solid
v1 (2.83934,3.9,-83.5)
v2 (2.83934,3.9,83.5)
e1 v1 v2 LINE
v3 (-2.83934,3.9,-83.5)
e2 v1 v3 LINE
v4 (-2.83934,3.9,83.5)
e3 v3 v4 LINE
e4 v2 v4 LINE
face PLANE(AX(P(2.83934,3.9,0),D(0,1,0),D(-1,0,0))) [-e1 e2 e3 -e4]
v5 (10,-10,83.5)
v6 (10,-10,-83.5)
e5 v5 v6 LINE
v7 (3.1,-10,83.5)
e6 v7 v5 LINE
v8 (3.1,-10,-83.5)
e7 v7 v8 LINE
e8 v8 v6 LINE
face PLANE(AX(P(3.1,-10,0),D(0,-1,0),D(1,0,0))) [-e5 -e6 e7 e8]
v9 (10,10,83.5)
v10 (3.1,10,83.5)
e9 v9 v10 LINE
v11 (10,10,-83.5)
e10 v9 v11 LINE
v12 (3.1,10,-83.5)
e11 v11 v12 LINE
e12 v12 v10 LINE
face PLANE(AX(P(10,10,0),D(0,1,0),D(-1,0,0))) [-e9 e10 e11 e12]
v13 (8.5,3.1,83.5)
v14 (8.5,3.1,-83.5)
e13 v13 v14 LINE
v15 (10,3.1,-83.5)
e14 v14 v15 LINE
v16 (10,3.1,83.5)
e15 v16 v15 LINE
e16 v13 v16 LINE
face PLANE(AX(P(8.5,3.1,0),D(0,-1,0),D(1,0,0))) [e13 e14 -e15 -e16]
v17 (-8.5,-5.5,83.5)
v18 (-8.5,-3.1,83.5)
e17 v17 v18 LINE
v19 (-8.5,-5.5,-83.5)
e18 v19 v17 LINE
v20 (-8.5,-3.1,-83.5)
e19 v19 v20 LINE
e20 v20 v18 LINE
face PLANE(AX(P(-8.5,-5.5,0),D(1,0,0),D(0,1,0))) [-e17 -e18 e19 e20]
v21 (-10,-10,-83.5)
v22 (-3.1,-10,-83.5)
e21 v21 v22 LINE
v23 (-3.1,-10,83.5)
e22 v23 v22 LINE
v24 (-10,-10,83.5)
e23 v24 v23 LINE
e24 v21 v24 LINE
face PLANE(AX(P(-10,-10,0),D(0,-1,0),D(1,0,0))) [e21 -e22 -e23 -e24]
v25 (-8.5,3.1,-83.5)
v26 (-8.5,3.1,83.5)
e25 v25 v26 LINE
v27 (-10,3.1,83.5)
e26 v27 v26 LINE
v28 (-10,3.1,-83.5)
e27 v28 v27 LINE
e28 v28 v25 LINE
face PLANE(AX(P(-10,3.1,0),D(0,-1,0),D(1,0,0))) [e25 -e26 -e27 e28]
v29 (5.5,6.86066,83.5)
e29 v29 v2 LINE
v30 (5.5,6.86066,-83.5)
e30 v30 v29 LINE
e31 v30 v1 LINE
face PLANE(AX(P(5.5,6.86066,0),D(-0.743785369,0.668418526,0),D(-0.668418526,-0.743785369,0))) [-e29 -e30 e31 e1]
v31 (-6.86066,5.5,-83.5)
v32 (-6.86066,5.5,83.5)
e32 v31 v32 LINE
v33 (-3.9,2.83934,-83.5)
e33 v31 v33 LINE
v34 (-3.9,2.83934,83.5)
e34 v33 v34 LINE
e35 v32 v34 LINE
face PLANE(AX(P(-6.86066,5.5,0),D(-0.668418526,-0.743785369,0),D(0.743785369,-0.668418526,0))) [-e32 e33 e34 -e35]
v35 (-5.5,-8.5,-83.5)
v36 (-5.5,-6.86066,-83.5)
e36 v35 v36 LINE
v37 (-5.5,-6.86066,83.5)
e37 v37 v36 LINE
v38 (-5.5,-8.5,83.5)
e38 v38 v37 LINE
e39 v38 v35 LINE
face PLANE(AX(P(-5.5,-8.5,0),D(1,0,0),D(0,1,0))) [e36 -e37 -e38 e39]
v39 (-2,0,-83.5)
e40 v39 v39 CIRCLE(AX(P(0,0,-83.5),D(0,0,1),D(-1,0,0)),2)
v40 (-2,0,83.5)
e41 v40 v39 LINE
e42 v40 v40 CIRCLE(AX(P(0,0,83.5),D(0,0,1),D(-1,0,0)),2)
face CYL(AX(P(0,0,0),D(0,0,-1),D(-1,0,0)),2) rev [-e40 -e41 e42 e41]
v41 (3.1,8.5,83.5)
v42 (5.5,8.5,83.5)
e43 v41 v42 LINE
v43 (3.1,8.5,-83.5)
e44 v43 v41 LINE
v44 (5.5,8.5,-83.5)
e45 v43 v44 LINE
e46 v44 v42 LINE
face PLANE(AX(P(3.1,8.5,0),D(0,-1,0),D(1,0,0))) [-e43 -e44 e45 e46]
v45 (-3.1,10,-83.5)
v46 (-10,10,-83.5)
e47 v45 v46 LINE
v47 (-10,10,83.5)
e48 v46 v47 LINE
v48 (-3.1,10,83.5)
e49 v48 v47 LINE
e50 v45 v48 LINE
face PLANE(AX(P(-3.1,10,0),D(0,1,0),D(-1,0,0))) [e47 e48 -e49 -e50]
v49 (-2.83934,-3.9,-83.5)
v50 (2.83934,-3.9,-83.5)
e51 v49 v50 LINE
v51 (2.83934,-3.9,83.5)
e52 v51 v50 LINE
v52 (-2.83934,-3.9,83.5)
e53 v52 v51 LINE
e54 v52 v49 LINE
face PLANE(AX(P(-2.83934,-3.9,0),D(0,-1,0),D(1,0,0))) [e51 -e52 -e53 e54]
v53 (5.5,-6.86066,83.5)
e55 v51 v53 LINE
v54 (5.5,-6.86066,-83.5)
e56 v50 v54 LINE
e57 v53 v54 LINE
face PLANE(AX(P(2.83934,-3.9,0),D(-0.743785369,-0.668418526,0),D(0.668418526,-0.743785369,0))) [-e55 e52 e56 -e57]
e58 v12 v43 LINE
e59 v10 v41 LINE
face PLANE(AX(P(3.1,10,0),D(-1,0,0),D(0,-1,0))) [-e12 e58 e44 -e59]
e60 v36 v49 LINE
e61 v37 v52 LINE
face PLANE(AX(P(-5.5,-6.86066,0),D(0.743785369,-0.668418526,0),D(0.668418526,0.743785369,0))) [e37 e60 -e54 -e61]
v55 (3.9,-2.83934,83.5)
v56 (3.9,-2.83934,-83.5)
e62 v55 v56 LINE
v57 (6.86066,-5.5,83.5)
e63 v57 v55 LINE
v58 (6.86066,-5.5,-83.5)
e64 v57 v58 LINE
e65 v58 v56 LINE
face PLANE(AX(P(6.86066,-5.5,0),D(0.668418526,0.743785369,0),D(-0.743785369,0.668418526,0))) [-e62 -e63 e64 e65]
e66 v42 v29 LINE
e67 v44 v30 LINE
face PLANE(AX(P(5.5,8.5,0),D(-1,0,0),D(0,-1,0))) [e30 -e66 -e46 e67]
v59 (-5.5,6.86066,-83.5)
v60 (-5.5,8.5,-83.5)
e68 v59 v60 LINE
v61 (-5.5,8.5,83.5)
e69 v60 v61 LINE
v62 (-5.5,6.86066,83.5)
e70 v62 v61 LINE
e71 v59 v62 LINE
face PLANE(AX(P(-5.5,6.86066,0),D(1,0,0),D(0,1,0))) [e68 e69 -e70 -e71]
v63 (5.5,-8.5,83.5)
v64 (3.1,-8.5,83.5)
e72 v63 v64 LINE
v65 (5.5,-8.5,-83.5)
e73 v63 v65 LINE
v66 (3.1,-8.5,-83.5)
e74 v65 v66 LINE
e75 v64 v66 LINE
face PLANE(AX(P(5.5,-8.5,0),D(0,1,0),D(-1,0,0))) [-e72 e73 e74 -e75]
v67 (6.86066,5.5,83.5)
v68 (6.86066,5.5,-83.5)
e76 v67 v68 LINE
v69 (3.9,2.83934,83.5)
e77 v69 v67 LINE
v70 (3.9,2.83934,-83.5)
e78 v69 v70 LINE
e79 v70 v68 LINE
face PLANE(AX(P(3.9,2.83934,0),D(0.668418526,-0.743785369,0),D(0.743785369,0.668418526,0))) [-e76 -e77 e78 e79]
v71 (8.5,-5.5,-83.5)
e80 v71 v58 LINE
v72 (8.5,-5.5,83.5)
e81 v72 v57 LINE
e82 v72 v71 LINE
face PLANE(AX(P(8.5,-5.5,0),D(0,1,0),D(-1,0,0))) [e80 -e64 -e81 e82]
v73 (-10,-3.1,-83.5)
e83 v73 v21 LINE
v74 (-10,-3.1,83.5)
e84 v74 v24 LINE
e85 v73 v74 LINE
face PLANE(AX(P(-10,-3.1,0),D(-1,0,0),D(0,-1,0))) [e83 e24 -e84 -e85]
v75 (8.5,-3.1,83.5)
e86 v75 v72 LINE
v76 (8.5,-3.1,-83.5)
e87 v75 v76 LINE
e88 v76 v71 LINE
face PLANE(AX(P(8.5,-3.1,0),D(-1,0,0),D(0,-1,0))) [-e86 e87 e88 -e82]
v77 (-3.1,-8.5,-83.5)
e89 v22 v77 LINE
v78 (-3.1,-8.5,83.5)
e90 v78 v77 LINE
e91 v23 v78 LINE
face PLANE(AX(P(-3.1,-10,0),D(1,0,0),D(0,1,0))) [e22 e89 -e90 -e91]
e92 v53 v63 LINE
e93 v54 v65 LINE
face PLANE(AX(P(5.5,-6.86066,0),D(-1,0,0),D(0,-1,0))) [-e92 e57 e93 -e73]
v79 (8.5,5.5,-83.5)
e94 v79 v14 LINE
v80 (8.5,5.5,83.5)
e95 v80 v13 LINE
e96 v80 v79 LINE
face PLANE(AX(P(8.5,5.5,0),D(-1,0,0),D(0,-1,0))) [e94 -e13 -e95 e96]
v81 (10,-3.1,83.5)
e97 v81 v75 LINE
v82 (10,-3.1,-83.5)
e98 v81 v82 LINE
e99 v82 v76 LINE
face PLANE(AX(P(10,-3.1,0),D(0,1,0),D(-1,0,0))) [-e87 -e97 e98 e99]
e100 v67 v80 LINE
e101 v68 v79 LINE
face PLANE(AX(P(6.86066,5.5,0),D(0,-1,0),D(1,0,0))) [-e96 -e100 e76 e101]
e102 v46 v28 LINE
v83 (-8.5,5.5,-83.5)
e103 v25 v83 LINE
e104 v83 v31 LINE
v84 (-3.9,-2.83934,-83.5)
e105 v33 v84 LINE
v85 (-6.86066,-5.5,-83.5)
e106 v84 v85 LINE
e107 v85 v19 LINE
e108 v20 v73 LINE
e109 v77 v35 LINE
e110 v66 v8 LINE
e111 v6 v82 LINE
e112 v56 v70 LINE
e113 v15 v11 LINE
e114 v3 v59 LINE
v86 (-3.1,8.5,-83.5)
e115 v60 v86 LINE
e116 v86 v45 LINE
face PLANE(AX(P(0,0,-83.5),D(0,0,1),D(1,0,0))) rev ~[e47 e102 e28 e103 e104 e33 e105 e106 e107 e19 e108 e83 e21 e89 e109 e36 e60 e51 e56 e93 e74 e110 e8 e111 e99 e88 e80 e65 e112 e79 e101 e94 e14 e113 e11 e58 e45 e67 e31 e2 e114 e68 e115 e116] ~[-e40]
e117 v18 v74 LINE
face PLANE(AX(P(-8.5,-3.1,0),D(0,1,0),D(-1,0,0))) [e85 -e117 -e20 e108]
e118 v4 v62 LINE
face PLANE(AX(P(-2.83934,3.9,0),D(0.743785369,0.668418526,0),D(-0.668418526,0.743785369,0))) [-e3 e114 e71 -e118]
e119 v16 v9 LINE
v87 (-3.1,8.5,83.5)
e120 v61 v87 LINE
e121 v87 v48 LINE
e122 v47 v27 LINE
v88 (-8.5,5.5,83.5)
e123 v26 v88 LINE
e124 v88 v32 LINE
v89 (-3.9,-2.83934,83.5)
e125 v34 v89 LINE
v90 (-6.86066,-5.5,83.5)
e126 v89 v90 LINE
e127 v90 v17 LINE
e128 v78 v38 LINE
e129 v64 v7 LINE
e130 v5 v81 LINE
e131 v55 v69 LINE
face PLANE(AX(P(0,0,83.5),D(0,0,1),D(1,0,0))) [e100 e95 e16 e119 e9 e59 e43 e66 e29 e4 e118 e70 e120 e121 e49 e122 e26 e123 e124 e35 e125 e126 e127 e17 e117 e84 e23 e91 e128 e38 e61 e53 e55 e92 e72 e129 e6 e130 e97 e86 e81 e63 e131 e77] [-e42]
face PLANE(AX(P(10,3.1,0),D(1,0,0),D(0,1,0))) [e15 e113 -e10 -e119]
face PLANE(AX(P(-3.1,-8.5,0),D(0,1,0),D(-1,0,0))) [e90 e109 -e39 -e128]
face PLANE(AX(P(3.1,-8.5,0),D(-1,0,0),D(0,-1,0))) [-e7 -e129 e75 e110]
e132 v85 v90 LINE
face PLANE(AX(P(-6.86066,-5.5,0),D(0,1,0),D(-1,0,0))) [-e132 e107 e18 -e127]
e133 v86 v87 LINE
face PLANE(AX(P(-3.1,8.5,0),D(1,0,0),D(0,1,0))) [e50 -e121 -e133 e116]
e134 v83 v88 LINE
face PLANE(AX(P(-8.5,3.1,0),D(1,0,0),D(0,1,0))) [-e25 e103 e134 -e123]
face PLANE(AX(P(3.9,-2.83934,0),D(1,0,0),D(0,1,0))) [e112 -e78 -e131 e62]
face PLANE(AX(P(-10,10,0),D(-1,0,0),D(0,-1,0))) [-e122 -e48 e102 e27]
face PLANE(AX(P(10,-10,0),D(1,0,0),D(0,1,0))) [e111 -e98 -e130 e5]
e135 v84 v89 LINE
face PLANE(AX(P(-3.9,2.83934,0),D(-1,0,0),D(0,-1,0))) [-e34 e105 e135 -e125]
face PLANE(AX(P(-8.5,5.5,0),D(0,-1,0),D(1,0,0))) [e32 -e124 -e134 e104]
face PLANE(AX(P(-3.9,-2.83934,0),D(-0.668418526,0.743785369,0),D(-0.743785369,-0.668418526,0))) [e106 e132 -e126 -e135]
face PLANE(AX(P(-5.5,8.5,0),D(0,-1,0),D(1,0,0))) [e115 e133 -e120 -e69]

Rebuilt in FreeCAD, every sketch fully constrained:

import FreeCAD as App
import Part
import Sketcher

V = App.Vector
Q = App.Units.Quantity

doc = App.newDocument("Part")
body = doc.addObject("PartDesign::Body", "Body")

# Sketch on XY plane
sketch1 = body.newObject("Sketcher::SketchObject", "Sketch")
sketch1.AttachmentSupport = (doc.getObject("XY_Plane"), [""])
sketch1.MapMode = "FlatFace"
sketch1.addGeometry(Part.LineSegment(V(10, 10, 0), V(3.1, 10, 0)), False)
sketch1.addGeometry(Part.LineSegment(V(3.1, 10, 0), V(3.1, 8.5, 0)), False)
sketch1.addGeometry(Part.LineSegment(V(3.1, 8.5, 0), V(5.5, 8.5, 0)), False)
sketch1.addGeometry(Part.LineSegment(V(5.5, 8.5, 0), V(5.5, 6.86066, 0)), False)
sketch1.addGeometry(Part.LineSegment(V(5.5, 6.86066, 0), V(2.83934, 3.9, 0)), False)
sketch1.addGeometry(Part.LineSegment(V(2.83934, 3.9, 0), V(-2.83934, 3.9, 0)), False)
sketch1.addGeometry(Part.LineSegment(V(-2.83934, 3.9, 0), V(-5.5, 6.86066, 0)), False)
sketch1.addGeometry(Part.LineSegment(V(-5.5, 6.86066, 0), V(-5.5, 8.5, 0)), False)
sketch1.addGeometry(Part.LineSegment(V(-5.5, 8.5, 0), V(-3.1, 8.5, 0)), False)
sketch1.addGeometry(Part.LineSegment(V(-3.1, 8.5, 0), V(-3.1, 10, 0)), False)
sketch1.addGeometry(Part.LineSegment(V(-3.1, 10, 0), V(-10, 10, 0)), False)
sketch1.addGeometry(Part.LineSegment(V(-10, 10, 0), V(-10, 3.1, 0)), False)
sketch1.addGeometry(Part.LineSegment(V(-10, 3.1, 0), V(-8.5, 3.1, 0)), False)
sketch1.addGeometry(Part.LineSegment(V(-8.5, 3.1, 0), V(-8.5, 5.5, 0)), False)
sketch1.addGeometry(Part.LineSegment(V(-8.5, 5.5, 0), V(-6.86066, 5.5, 0)), False)
sketch1.addGeometry(Part.LineSegment(V(-6.86066, 5.5, 0), V(-3.9, 2.83934, 0)), False)
sketch1.addGeometry(Part.LineSegment(V(-3.9, 2.83934, 0), V(-3.9, -2.83934, 0)), False)
sketch1.addGeometry(Part.LineSegment(V(-3.9, -2.83934, 0), V(-6.86066, -5.5, 0)), False)
sketch1.addGeometry(Part.LineSegment(V(-6.86066, -5.5, 0), V(-8.5, -5.5, 0)), False)
sketch1.addGeometry(Part.LineSegment(V(-8.5, -5.5, 0), V(-8.5, -3.1, 0)), False)
sketch1.addGeometry(Part.LineSegment(V(-8.5, -3.1, 0), V(-10, -3.1, 0)), False)
sketch1.addGeometry(Part.LineSegment(V(-10, -3.1, 0), V(-10, -10, 0)), False)
sketch1.addGeometry(Part.LineSegment(V(-10, -10, 0), V(-3.1, -10, 0)), False)
sketch1.addGeometry(Part.LineSegment(V(-3.1, -10, 0), V(-3.1, -8.5, 0)), False)
sketch1.addGeometry(Part.LineSegment(V(-3.1, -8.5, 0), V(-5.5, -8.5, 0)), False)
sketch1.addGeometry(Part.LineSegment(V(-5.5, -8.5, 0), V(-5.5, -6.86066, 0)), False)
sketch1.addGeometry(Part.LineSegment(V(-5.5, -6.86066, 0), V(-2.83934, -3.9, 0)), False)
sketch1.addGeometry(Part.LineSegment(V(-2.83934, -3.9, 0), V(2.83934, -3.9, 0)), False)
sketch1.addGeometry(Part.LineSegment(V(2.83934, -3.9, 0), V(5.5, -6.86066, 0)), False)
sketch1.addGeometry(Part.LineSegment(V(5.5, -6.86066, 0), V(5.5, -8.5, 0)), False)
sketch1.addGeometry(Part.LineSegment(V(5.5, -8.5, 0), V(3.1, -8.5, 0)), False)
sketch1.addGeometry(Part.LineSegment(V(3.1, -8.5, 0), V(3.1, -10, 0)), False)
sketch1.addGeometry(Part.LineSegment(V(3.1, -10, 0), V(10, -10, 0)), False)
sketch1.addGeometry(Part.LineSegment(V(10, -10, 0), V(10, -3.1, 0)), False)
sketch1.addGeometry(Part.LineSegment(V(10, -3.1, 0), V(8.5, -3.1, 0)), False)
sketch1.addGeometry(Part.LineSegment(V(8.5, -3.1, 0), V(8.5, -5.5, 0)), False)
sketch1.addGeometry(Part.LineSegment(V(8.5, -5.5, 0), V(6.86066, -5.5, 0)), False)
sketch1.addGeometry(Part.LineSegment(V(6.86066, -5.5, 0), V(3.9, -2.83934, 0)), False)
sketch1.addGeometry(Part.LineSegment(V(3.9, -2.83934, 0), V(3.9, 2.83934, 0)), False)
sketch1.addGeometry(Part.LineSegment(V(3.9, 2.83934, 0), V(6.86066, 5.5, 0)), False)
sketch1.addGeometry(Part.LineSegment(V(6.86066, 5.5, 0), V(8.5, 5.5, 0)), False)
sketch1.addGeometry(Part.LineSegment(V(8.5, 5.5, 0), V(8.5, 3.1, 0)), False)
sketch1.addGeometry(Part.LineSegment(V(8.5, 3.1, 0), V(10, 3.1, 0)), False)
sketch1.addGeometry(Part.LineSegment(V(10, 3.1, 0), V(10, 10, 0)), False)
sketch1.addGeometry(Part.Circle(V(0, 0, 0), V(0, 0, 1), 2), False)
sketch1.addConstraint(Sketcher.Constraint("Coincident", 0, 2, 1, 1))
sketch1.addConstraint(Sketcher.Constraint("Coincident", 1, 2, 2, 1))
sketch1.addConstraint(Sketcher.Constraint("Coincident", 2, 2, 3, 1))
sketch1.addConstraint(Sketcher.Constraint("Coincident", 3, 2, 4, 1))
sketch1.addConstraint(Sketcher.Constraint("Coincident", 4, 2, 5, 1))
sketch1.addConstraint(Sketcher.Constraint("Coincident", 5, 2, 6, 1))
sketch1.addConstraint(Sketcher.Constraint("Coincident", 6, 2, 7, 1))
sketch1.addConstraint(Sketcher.Constraint("Coincident", 7, 2, 8, 1))
sketch1.addConstraint(Sketcher.Constraint("Coincident", 8, 2, 9, 1))
sketch1.addConstraint(Sketcher.Constraint("Coincident", 9, 2, 10, 1))
sketch1.addConstraint(Sketcher.Constraint("Coincident", 10, 2, 11, 1))
sketch1.addConstraint(Sketcher.Constraint("Coincident", 11, 2, 12, 1))
sketch1.addConstraint(Sketcher.Constraint("Coincident", 12, 2, 13, 1))
sketch1.addConstraint(Sketcher.Constraint("Coincident", 13, 2, 14, 1))
sketch1.addConstraint(Sketcher.Constraint("Coincident", 14, 2, 15, 1))
sketch1.addConstraint(Sketcher.Constraint("Coincident", 15, 2, 16, 1))
sketch1.addConstraint(Sketcher.Constraint("Coincident", 16, 2, 17, 1))
sketch1.addConstraint(Sketcher.Constraint("Coincident", 17, 2, 18, 1))
sketch1.addConstraint(Sketcher.Constraint("Coincident", 18, 2, 19, 1))
sketch1.addConstraint(Sketcher.Constraint("Coincident", 19, 2, 20, 1))
sketch1.addConstraint(Sketcher.Constraint("Coincident", 20, 2, 21, 1))
sketch1.addConstraint(Sketcher.Constraint("Coincident", 21, 2, 22, 1))
sketch1.addConstraint(Sketcher.Constraint("Coincident", 22, 2, 23, 1))
sketch1.addConstraint(Sketcher.Constraint("Coincident", 23, 2, 24, 1))
sketch1.addConstraint(Sketcher.Constraint("Coincident", 24, 2, 25, 1))
sketch1.addConstraint(Sketcher.Constraint("Coincident", 25, 2, 26, 1))
sketch1.addConstraint(Sketcher.Constraint("Coincident", 26, 2, 27, 1))
sketch1.addConstraint(Sketcher.Constraint("Coincident", 27, 2, 28, 1))
sketch1.addConstraint(Sketcher.Constraint("Coincident", 28, 2, 29, 1))
sketch1.addConstraint(Sketcher.Constraint("Coincident", 29, 2, 30, 1))
sketch1.addConstraint(Sketcher.Constraint("Coincident", 30, 2, 31, 1))
sketch1.addConstraint(Sketcher.Constraint("Coincident", 31, 2, 32, 1))
sketch1.addConstraint(Sketcher.Constraint("Coincident", 32, 2, 33, 1))
sketch1.addConstraint(Sketcher.Constraint("Coincident", 33, 2, 34, 1))
sketch1.addConstraint(Sketcher.Constraint("Coincident", 34, 2, 35, 1))
sketch1.addConstraint(Sketcher.Constraint("Coincident", 35, 2, 36, 1))
sketch1.addConstraint(Sketcher.Constraint("Coincident", 36, 2, 37, 1))
sketch1.addConstraint(Sketcher.Constraint("Coincident", 37, 2, 38, 1))
sketch1.addConstraint(Sketcher.Constraint("Coincident", 38, 2, 39, 1))
sketch1.addConstraint(Sketcher.Constraint("Coincident", 39, 2, 40, 1))
sketch1.addConstraint(Sketcher.Constraint("Coincident", 40, 2, 41, 1))
sketch1.addConstraint(Sketcher.Constraint("Coincident", 41, 2, 42, 1))
sketch1.addConstraint(Sketcher.Constraint("Coincident", 42, 2, 43, 1))
sketch1.addConstraint(Sketcher.Constraint("Coincident", 43, 2, 0, 1))
sketch1.addConstraint(Sketcher.Constraint("Horizontal", 0))
sketch1.addConstraint(Sketcher.Constraint("Vertical", 1))
sketch1.addConstraint(Sketcher.Constraint("Horizontal", 2))
sketch1.addConstraint(Sketcher.Constraint("Vertical", 3))
sketch1.addConstraint(Sketcher.Constraint("Horizontal", 5))
sketch1.addConstraint(Sketcher.Constraint("Vertical", 7))
sketch1.addConstraint(Sketcher.Constraint("Horizontal", 8))
sketch1.addConstraint(Sketcher.Constraint("Vertical", 9))
sketch1.addConstraint(Sketcher.Constraint("Horizontal", 10))
sketch1.addConstraint(Sketcher.Constraint("Vertical", 11))
sketch1.addConstraint(Sketcher.Constraint("Horizontal", 12))
sketch1.addConstraint(Sketcher.Constraint("Vertical", 13))
sketch1.addConstraint(Sketcher.Constraint("Horizontal", 14))
sketch1.addConstraint(Sketcher.Constraint("Vertical", 16))
sketch1.addConstraint(Sketcher.Constraint("Horizontal", 18))
sketch1.addConstraint(Sketcher.Constraint("Vertical", 19))
sketch1.addConstraint(Sketcher.Constraint("Horizontal", 20))
sketch1.addConstraint(Sketcher.Constraint("Vertical", 21))
sketch1.addConstraint(Sketcher.Constraint("Horizontal", 22))
sketch1.addConstraint(Sketcher.Constraint("Vertical", 23))
sketch1.addConstraint(Sketcher.Constraint("Horizontal", 24))
sketch1.addConstraint(Sketcher.Constraint("Vertical", 25))
sketch1.addConstraint(Sketcher.Constraint("Horizontal", 27))
sketch1.addConstraint(Sketcher.Constraint("Vertical", 29))
sketch1.addConstraint(Sketcher.Constraint("Horizontal", 30))
sketch1.addConstraint(Sketcher.Constraint("Vertical", 31))
sketch1.addConstraint(Sketcher.Constraint("Horizontal", 32))
sketch1.addConstraint(Sketcher.Constraint("Vertical", 33))
sketch1.addConstraint(Sketcher.Constraint("Horizontal", 34))
sketch1.addConstraint(Sketcher.Constraint("Vertical", 35))
sketch1.addConstraint(Sketcher.Constraint("Horizontal", 36))
sketch1.addConstraint(Sketcher.Constraint("Vertical", 38))
sketch1.addConstraint(Sketcher.Constraint("Horizontal", 40))
sketch1.addConstraint(Sketcher.Constraint("Vertical", 41))
sketch1.addConstraint(Sketcher.Constraint("Horizontal", 42))
sketch1.addConstraint(Sketcher.Constraint("Vertical", 43))
sketch1.addConstraint(Sketcher.Constraint("Coincident", 44, 3, -1, 1))
sketch1.addConstraint(Sketcher.Constraint("Symmetric", 0, 2, 22, 2, -1, 1))
sketch1.addConstraint(Sketcher.Constraint("Symmetric", 2, 2, 24, 2, -1, 1))
sketch1.addConstraint(Sketcher.Constraint("Symmetric", 4, 2, 26, 2, -1, 1))
sketch1.addConstraint(Sketcher.Constraint("Symmetric", 6, 2, 28, 2, -1, 1))
sketch1.addConstraint(Sketcher.Constraint("Symmetric", 8, 2, 30, 2, -1, 1))
sketch1.addConstraint(Sketcher.Constraint("Symmetric", 10, 2, 32, 2, -1, 1))
sketch1.addConstraint(Sketcher.Constraint("Symmetric", 12, 2, 34, 2, -1, 1))
sketch1.addConstraint(Sketcher.Constraint("Symmetric", 14, 2, 36, 2, -1, 1))
sketch1.addConstraint(Sketcher.Constraint("Symmetric", 15, 2, 37, 2, -1, 1))
sketch1.addConstraint(Sketcher.Constraint("Symmetric", 17, 2, 39, 2, -1, 1))
sketch1.addConstraint(Sketcher.Constraint("Symmetric", 19, 2, 41, 2, -1, 1))
sketch1.addConstraint(Sketcher.Constraint("Symmetric", 3, 2, 6, 2, -2))
sketch1.addConstraint(Sketcher.Constraint("Symmetric", 1, 2, 8, 2, -2))
sketch1.addConstraint(Sketcher.Constraint("Symmetric", 21, 2, 32, 2, -2))
sketch1.addConstraint(Sketcher.Constraint("Symmetric", 19, 2, 34, 2, -2))
sketch1.addConstraint(Sketcher.Constraint("Symmetric", 17, 2, 36, 2, -2))
sketch1.addConstraint(Sketcher.Constraint("Perpendicular", 4, 15))
sketch1.addConstraint(Sketcher.Constraint("Perpendicular", 6, 17))
sketch1.addConstraint(Sketcher.Constraint("Perpendicular", 15, 26))
sketch1.addConstraint(Sketcher.Constraint("Perpendicular", 17, 28))
sketch1.addConstraint(Sketcher.Constraint("Perpendicular", 28, 39))
sketch1.addConstraint(Sketcher.Constraint("Horizontal", 16, 2, 37, 2))
sketch1.addConstraint(Sketcher.Constraint("Vertical", 33, 2, 42, 2))
sketch1.addConstraint(Sketcher.Constraint("Equal", 42, 1))
sketch1.addConstraint(Sketcher.Constraint("Equal", 40, 3))
sketch1.addConstraint(Sketcher.Constraint("Equal", 32, 11))
sketch1.addConstraint(Sketcher.Constraint("Equal", 30, 13))
sketch1.addConstraint(Sketcher.Constraint("Equal", 27, 16))
sketch1.addConstraint(Sketcher.Constraint("Equal", 6, 15))
sketch1.addConstraint(Sketcher.Constraint("Diameter", 44, Q("4 mm")))
sketch1.addConstraint(Sketcher.Constraint("DistanceX", 0, 2, 0, 1, Q("6.9 mm")))
sketch1.addConstraint(Sketcher.Constraint("DistanceX", 2, 1, 2, 2, Q("2.4 mm")))
sketch1.addConstraint(Sketcher.Constraint("DistanceX", 12, 1, 12, 2, Q("1.5 mm")))
sketch1.addConstraint(Sketcher.Constraint("DistanceY", -1, 1, 0, 2, Q("10 mm")))
sketch1.addConstraint(Sketcher.Constraint("DistanceY", -1, 1, 4, 2, Q("3.9 mm")))
sketch1.addConstraint(Sketcher.Constraint("DistanceX", 5, 2, 5, 1, Q("5.67868 mm")))
sketch1.addConstraint(Sketcher.Constraint("DistanceX", 14, 1, 14, 2, Q("1.63934 mm")))
pad1 = body.newObject("PartDesign::Pad", "Pad")
pad1.Profile = sketch1
pad1.Length = 167
pad1.Midplane = True

doc.recompute()
